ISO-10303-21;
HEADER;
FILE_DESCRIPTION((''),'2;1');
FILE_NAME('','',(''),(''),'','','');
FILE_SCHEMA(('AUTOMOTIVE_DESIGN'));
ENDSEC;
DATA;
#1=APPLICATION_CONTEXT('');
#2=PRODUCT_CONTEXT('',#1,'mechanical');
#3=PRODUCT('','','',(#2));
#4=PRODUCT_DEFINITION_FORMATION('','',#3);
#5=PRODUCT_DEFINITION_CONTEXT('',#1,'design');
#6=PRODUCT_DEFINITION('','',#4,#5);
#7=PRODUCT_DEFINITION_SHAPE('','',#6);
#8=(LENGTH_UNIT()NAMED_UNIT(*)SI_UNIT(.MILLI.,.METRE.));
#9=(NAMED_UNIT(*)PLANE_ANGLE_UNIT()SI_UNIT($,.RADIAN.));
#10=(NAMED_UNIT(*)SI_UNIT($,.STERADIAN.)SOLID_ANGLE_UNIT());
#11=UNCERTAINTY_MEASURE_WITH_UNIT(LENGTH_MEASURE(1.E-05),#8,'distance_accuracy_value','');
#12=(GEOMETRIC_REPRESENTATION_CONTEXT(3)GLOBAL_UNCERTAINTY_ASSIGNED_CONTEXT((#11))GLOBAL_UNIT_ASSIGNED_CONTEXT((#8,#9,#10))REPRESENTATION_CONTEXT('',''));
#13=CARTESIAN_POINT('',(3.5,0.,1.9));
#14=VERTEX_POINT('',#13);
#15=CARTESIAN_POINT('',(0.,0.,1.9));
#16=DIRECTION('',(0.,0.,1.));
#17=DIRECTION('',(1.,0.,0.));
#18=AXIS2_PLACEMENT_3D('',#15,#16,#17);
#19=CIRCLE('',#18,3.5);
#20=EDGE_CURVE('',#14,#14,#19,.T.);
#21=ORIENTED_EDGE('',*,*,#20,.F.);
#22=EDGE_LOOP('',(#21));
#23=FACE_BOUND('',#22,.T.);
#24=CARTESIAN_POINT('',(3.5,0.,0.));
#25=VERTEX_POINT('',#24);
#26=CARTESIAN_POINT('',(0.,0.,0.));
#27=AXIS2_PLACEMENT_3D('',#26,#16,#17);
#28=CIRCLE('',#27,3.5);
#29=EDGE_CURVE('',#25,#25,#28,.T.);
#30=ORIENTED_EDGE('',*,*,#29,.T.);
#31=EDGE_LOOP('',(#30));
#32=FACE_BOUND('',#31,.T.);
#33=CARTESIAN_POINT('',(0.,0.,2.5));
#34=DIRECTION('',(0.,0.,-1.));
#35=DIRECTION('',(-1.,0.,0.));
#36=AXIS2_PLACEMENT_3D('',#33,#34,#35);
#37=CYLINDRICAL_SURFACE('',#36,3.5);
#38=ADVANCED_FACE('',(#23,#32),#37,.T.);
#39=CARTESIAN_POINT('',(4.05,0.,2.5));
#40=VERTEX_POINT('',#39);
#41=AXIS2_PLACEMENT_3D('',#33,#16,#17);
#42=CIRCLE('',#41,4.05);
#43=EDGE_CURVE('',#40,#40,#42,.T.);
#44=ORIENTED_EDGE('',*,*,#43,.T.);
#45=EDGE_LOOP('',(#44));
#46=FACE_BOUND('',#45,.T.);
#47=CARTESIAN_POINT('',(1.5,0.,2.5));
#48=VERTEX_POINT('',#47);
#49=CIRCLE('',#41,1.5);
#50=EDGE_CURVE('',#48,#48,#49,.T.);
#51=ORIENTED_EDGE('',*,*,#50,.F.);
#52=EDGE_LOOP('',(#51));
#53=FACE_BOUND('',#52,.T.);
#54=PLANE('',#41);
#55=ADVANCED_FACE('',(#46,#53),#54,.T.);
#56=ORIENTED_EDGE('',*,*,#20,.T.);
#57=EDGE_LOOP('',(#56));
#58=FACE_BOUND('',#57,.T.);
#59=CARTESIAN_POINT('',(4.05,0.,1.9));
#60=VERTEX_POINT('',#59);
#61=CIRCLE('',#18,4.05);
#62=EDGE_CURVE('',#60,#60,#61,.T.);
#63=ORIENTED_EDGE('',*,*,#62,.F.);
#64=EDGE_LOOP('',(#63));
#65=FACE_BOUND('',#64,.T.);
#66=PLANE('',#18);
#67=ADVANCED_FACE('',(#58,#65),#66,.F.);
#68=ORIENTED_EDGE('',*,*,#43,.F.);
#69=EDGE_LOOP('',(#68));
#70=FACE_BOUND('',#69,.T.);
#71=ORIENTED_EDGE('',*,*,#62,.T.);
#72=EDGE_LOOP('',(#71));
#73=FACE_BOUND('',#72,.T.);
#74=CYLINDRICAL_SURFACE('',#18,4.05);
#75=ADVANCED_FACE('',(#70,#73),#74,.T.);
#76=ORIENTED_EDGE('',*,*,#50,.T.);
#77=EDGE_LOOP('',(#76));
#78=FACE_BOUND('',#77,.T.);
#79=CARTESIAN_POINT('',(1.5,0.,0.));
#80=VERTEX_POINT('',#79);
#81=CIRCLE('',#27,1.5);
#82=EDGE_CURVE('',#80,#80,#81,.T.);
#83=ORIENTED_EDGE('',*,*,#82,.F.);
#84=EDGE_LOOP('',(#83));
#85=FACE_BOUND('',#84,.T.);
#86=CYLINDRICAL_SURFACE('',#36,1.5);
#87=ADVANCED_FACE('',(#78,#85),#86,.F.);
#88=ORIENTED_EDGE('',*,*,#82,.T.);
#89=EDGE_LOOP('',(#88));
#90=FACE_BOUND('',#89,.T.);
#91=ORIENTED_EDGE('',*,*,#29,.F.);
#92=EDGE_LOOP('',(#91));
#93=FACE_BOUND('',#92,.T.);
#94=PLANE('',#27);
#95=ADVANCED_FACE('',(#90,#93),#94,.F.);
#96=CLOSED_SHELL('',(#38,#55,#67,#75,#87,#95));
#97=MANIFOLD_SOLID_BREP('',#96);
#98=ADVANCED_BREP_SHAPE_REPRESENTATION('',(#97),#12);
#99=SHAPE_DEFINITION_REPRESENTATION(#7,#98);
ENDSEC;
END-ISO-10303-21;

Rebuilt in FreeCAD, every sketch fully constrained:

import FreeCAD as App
import Part
import Sketcher

V = App.Vector

doc = App.newDocument("Part")
params = doc.addObject("Spreadsheet::Sheet", "Params")
for row, (alias, value) in enumerate([
    ("sketch1_diameter", "7 mm"),
    ("sketch1_diameter2", "3 mm"),
    ("pad1_length", "2.5 mm"),
    ("sketch2_diameter", "3 mm"),
    ("sketch2_diameter2", "8.1 mm"),
    ("pad2_length", "0.6 mm"),
], start=1):
    params.set(f"A{row}", alias)
    params.set(f"B{row}", "=" + value)
    params.setAlias(f"B{row}", alias)

body = doc.addObject("PartDesign::Body", "Body")

# Sketch on XY plane
sketch1 = doc.addObject("Sketcher::SketchObject", "Sketch")
body.addObject(sketch1)
sketch1.AttachmentSupport = (doc.XY_Plane, [""])
sketch1.MapMode = "FlatFace"
sketch1.addGeometry([
    Part.Circle(V(0, 0, 0), V(0, 0, 1), 3.5),
    Part.Circle(V(0, 0, 0), V(0, 0, 1), 1.5),
], False)
sketch1.addConstraint([
    Sketcher.Constraint("Coincident", 0, 3, -1, 1),
    Sketcher.Constraint("Coincident", 1, 3, -1, 1),
    Sketcher.Constraint("Diameter", 0, 7.0),
    Sketcher.Constraint("Diameter", 1, 3.0),
])
sketch1.setExpression("Constraints[2]", "Params.sketch1_diameter")
sketch1.setExpression("Constraints[3]", "Params.sketch1_diameter2")
pad1 = doc.addObject("PartDesign::Pad", "Pad")
body.addObject(pad1)
pad1.Profile = sketch1
pad1.setExpression("Length", "Params.pad1_length")

# Sketch on XY plane
sketch2 = doc.addObject("Sketcher::SketchObject", "Sketch001")
body.addObject(sketch2)
sketch2.AttachmentSupport = (doc.XY_Plane, [""])
sketch2.MapMode = "FlatFace"
sketch2.AttachmentOffset = App.Placement(V(0, 0, 2.5), App.Rotation())
sketch2.addGeometry([
    Part.Circle(V(0, 0, 0), V(0, 0, 1), 4),
    Part.Circle(V(0, 0, 0), V(0, 0, 1), 1.5),
], False)
sketch2.addConstraint([
    Sketcher.Constraint("Coincident", 0, 3, -1, 1),
    Sketcher.Constraint("Coincident", 1, 3, -1, 1),
    Sketcher.Constraint("Diameter", 1, 3.0),
    Sketcher.Constraint("Diameter", 0, 8.1),
])
sketch2.setExpression("Constraints[2]", "Params.sketch2_diameter")
sketch2.setExpression("Constraints[3]", "Params.sketch2_diameter2")
pad2 = doc.addObject("PartDesign::Pad", "Pad001")
body.addObject(pad2)
pad2.Profile = sketch2
pad2.setExpression("Length", "Params.pad2_length")
pad2.Reversed = True

doc.recompute()
